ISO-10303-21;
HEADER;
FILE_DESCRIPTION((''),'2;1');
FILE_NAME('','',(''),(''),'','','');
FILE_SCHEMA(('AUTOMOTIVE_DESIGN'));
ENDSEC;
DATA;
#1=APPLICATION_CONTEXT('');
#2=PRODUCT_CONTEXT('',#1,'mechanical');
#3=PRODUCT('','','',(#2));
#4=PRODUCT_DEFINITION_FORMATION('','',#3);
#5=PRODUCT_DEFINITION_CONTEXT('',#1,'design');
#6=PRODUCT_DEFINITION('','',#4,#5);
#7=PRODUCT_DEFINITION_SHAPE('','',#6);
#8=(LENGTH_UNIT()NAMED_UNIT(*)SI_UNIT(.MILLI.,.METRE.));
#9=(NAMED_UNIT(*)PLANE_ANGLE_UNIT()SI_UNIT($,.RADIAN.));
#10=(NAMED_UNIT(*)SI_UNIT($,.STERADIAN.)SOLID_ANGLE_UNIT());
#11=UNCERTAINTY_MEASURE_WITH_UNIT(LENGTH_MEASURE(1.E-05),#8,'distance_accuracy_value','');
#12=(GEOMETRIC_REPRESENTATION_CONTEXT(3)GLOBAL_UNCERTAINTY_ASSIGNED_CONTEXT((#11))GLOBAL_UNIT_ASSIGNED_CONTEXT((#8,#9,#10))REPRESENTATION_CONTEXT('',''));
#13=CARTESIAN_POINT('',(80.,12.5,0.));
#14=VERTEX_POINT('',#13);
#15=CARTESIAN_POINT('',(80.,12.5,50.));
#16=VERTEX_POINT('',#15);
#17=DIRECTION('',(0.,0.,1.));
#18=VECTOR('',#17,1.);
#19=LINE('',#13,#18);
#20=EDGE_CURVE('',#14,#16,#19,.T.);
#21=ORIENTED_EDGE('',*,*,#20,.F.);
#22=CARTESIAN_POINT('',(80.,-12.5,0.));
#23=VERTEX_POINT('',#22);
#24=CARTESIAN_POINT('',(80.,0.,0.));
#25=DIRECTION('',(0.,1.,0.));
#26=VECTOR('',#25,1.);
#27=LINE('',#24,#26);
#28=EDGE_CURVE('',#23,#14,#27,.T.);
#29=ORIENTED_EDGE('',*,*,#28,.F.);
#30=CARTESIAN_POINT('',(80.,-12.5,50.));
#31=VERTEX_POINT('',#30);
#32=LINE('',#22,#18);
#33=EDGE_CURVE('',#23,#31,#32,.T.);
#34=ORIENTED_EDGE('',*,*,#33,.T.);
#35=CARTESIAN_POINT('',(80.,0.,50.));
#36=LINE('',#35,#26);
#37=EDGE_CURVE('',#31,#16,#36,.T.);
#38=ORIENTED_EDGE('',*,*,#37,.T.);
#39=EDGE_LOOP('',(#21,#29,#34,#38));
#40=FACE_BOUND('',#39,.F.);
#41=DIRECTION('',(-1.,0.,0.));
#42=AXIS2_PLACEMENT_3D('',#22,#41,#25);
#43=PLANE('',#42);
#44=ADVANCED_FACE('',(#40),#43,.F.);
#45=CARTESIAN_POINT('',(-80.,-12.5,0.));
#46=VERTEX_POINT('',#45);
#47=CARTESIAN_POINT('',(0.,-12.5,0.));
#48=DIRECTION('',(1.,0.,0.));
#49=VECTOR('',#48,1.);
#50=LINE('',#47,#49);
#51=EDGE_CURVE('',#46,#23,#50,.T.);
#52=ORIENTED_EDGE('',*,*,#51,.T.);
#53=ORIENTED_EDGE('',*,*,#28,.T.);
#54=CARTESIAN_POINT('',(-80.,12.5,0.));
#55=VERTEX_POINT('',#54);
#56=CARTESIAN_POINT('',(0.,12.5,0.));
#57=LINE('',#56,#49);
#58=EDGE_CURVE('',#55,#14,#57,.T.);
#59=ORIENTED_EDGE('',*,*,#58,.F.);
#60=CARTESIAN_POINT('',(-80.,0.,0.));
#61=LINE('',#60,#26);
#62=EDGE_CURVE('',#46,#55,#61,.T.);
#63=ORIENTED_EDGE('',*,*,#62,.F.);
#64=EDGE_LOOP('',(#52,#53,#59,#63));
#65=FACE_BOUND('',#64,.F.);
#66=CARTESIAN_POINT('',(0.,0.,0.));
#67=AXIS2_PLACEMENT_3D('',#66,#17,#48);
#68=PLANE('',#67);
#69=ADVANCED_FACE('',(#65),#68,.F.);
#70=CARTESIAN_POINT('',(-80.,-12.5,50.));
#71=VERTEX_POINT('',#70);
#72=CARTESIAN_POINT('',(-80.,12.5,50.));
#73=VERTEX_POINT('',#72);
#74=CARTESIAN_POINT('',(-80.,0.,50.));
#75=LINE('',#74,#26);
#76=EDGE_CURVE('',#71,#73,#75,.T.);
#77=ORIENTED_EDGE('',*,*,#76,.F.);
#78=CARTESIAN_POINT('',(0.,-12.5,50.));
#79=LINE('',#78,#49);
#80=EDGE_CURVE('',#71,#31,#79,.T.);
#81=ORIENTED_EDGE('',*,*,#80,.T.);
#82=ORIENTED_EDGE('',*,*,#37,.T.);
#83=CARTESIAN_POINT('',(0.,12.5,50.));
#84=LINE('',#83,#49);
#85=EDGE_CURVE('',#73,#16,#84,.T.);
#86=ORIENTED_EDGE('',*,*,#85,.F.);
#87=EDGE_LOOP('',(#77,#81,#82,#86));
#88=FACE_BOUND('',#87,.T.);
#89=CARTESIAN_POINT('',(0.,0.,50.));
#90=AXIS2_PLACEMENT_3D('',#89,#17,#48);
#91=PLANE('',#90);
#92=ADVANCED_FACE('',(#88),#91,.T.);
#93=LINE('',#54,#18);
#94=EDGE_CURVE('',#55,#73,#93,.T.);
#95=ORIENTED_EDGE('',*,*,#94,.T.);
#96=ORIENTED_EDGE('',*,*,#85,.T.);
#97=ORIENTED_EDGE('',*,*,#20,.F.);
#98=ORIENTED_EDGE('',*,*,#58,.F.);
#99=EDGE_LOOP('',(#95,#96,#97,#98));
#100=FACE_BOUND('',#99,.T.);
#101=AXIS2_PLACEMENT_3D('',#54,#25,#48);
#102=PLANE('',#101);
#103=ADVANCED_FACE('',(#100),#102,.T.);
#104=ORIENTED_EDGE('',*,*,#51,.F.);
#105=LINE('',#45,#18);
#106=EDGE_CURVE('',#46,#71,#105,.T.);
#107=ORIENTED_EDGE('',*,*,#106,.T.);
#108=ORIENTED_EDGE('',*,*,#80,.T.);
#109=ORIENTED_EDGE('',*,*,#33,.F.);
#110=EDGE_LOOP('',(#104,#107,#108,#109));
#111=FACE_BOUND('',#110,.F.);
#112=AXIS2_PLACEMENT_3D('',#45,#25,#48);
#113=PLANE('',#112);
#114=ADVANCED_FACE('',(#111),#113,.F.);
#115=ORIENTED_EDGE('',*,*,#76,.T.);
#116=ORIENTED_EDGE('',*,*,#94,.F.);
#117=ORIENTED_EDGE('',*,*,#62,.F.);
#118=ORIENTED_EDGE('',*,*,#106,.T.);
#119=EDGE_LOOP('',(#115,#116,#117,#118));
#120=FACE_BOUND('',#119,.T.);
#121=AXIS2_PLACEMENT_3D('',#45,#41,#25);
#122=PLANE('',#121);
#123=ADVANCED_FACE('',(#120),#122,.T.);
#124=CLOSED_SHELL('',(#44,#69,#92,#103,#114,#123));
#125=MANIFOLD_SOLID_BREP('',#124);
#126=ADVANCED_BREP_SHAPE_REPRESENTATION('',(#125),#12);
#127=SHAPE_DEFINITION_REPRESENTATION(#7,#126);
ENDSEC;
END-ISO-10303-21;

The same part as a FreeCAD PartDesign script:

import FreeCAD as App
import Part
import Sketcher
Q = App.Units.Quantity


def add_polygon(sketch, points):
    """Adds a closed chain of lines whose ends are joined by coincident constraints."""
    first, n = sketch.GeometryCount, len(points)
    for a, b in zip(points, points[1:] + points[:1]):
        sketch.addGeometry(Part.LineSegment(App.Vector(*a, 0), App.Vector(*b, 0)), False)
    for i in range(n):
        sketch.addConstraint(Sketcher.Constraint("Coincident", first + i, 2, first + (i + 1) % n, 1))

doc = App.newDocument("Part")
body = doc.addObject("PartDesign::Body", "Body")

# Sketch on XY plane
sketch1 = body.newObject("Sketcher::SketchObject", "Sketch")
sketch1.AttachmentSupport = (doc.getObject("XY_Plane"), [""])
sketch1.MapMode = "FlatFace"
add_polygon(sketch1, [(-80, 12), (-80, -12), (80, -12), (80, 12)])  # lines 0-3
sketch1.addConstraint([
    Sketcher.Constraint("Vertical", 0),
    Sketcher.Constraint("Horizontal", 1),
    Sketcher.Constraint("Vertical", 2),
    Sketcher.Constraint("Horizontal", 3),
    Sketcher.Constraint("Symmetric", 0, 2, 2, 2, -1, 1),
    Sketcher.Constraint("DistanceX", 1, 1, 1, 2, Q("160 mm")),
    Sketcher.Constraint("DistanceY", 0, 2, 0, 1, Q("25 mm")),
])
pad1 = body.newObject("PartDesign::Pad", "Pad")
pad1.Profile = sketch1
pad1.Length = 50

doc.recompute()
